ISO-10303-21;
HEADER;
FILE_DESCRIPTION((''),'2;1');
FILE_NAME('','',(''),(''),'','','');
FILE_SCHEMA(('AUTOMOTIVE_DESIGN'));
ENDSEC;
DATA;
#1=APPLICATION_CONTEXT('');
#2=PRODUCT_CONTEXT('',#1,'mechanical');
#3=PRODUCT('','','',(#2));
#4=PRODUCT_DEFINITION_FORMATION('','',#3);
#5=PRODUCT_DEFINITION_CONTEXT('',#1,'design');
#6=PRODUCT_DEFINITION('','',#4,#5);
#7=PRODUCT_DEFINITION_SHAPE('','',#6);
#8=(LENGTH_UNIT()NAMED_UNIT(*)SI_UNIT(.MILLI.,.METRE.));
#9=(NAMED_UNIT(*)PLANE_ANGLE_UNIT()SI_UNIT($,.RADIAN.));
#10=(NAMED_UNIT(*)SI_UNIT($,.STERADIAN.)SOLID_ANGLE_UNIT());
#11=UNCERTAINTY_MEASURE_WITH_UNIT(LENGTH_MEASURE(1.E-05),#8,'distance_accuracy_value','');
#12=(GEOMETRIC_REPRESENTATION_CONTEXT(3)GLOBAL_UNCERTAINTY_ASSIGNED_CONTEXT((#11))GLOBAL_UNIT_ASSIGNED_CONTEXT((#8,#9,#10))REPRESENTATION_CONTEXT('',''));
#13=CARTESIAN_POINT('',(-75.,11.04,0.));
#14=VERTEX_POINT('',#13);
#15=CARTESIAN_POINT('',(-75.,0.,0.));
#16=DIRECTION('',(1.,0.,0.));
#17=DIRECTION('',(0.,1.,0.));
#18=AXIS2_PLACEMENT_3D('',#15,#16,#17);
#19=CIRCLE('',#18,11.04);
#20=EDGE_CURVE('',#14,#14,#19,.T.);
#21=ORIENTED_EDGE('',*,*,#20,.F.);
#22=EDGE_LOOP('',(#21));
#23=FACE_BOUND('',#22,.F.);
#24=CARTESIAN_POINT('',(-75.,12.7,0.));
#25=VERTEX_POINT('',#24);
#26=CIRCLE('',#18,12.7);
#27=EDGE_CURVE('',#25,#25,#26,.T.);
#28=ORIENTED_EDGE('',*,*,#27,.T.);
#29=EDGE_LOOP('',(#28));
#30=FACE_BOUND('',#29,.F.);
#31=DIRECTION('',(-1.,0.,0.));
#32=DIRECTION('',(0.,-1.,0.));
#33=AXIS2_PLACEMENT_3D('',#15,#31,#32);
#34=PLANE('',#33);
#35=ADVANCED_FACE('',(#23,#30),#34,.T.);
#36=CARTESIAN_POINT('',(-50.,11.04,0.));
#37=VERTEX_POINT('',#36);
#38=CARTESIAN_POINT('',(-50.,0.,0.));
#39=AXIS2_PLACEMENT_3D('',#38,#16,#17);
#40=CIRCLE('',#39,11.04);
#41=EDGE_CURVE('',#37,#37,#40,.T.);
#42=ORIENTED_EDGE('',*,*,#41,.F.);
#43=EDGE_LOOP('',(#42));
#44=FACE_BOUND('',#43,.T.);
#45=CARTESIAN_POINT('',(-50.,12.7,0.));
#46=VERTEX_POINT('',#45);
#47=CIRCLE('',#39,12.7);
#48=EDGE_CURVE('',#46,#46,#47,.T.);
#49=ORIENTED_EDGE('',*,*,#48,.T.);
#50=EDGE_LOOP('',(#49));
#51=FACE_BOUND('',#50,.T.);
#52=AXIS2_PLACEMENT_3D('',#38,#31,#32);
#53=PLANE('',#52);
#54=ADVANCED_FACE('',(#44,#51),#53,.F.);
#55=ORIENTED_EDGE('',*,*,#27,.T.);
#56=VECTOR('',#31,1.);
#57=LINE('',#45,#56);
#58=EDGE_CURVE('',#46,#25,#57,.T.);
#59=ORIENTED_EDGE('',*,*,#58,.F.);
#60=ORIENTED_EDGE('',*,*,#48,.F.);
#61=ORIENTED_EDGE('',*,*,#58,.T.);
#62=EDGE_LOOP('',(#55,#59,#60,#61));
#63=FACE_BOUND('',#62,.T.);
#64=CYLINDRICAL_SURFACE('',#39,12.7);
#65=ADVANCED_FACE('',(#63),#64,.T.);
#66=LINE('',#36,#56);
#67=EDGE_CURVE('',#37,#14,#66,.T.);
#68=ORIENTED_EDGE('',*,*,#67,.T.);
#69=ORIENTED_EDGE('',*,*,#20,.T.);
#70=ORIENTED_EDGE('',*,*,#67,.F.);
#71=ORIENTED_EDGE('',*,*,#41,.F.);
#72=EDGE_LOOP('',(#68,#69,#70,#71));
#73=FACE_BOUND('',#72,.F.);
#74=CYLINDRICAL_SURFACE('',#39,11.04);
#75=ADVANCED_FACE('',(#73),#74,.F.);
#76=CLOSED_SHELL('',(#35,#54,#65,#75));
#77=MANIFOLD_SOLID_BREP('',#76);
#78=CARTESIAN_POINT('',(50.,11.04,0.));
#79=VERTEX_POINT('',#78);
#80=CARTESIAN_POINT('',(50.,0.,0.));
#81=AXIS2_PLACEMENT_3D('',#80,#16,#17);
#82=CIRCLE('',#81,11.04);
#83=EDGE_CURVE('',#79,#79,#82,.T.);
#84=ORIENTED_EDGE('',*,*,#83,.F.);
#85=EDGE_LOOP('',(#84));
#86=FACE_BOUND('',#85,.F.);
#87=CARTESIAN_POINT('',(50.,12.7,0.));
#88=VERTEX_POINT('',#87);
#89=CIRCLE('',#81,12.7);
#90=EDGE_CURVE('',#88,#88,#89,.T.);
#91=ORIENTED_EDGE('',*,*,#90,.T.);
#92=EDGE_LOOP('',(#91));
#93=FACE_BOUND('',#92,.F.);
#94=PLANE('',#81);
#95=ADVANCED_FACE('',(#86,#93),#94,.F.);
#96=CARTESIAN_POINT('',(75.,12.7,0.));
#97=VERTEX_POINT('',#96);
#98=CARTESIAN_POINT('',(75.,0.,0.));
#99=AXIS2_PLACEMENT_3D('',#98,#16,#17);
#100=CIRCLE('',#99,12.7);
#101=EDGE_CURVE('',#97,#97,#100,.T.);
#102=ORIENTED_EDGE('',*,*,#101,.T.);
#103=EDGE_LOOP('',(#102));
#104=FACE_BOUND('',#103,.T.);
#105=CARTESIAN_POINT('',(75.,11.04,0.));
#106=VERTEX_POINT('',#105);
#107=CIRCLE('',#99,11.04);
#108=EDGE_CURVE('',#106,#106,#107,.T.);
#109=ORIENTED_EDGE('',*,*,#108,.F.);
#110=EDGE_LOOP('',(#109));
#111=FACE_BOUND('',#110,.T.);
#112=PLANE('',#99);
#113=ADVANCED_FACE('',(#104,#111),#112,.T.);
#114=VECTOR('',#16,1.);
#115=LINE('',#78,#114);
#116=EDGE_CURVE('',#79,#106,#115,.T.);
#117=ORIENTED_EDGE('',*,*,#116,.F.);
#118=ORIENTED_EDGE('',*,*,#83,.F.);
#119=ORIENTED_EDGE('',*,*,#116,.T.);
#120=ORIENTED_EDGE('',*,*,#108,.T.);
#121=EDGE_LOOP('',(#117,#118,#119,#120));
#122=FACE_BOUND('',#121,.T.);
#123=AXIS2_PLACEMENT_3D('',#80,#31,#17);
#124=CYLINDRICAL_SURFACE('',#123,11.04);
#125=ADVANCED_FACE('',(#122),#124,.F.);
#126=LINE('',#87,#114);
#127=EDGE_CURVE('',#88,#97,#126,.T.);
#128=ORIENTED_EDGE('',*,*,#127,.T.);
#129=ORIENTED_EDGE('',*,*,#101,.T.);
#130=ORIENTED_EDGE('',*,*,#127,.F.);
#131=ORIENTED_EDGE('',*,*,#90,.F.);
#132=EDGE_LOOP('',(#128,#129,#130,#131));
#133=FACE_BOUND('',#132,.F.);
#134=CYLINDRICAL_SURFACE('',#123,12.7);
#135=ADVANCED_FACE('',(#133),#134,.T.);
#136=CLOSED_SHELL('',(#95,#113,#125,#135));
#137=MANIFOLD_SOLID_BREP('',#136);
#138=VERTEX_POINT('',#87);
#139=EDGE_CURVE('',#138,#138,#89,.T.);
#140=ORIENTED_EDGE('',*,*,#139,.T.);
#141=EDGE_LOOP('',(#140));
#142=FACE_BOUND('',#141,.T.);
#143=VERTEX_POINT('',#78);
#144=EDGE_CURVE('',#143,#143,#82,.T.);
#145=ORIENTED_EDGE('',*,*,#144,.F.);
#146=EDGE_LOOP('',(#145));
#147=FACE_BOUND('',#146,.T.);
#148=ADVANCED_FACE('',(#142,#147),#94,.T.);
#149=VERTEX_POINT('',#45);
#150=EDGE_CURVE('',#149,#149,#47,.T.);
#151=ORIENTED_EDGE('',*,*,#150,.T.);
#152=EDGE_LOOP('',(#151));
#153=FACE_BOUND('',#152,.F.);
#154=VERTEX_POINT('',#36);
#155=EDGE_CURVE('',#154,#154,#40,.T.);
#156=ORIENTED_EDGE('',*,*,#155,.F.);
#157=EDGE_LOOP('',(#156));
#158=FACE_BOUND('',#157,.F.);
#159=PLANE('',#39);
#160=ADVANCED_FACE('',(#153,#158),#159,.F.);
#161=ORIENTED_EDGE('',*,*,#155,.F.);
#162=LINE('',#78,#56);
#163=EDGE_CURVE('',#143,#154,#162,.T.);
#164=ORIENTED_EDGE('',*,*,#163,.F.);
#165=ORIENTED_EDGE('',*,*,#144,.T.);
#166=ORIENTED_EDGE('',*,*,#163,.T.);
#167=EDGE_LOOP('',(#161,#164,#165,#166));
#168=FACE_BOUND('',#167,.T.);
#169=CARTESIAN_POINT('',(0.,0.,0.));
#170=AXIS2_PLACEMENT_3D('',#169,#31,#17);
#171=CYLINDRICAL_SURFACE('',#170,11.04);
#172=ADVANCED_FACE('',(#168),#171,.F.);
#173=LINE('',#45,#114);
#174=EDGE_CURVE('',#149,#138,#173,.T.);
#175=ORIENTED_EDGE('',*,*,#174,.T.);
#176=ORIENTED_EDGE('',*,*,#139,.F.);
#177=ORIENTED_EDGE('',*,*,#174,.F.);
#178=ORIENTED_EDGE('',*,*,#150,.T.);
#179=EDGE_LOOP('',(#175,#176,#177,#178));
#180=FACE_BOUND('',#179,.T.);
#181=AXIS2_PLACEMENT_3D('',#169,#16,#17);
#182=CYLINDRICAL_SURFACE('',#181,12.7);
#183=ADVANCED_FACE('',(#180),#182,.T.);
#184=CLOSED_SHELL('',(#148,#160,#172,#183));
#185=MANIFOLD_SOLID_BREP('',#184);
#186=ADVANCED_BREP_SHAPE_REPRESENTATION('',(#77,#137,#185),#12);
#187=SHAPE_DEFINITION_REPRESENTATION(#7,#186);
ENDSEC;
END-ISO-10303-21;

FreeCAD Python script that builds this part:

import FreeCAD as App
import Part
import Sketcher
from FreeCAD import Vector

doc = App.newDocument("Part")
body = doc.addObject("PartDesign::Body", "Body")

# Sketch on YZ plane
sketch1 = doc.addObject("Sketcher::SketchObject", "Sketch")
body.addObject(sketch1)
sketch1.AttachmentSupport = (doc.YZ_Plane, [""])
sketch1.MapMode = "FlatFace"
sketch1.addGeometry([
    Part.Circle(Vector(0, 0, 0), Vector(0, 0, 1), 12.7),
    Part.Circle(Vector(0, 0, 0), Vector(0, 0, 1), 11.04),
], False)
sketch1.addConstraint([
    Sketcher.Constraint("Coincident", 0, 3, -1, 1),
    Sketcher.Constraint("Coincident", 1, 3, -1, 1),
    Sketcher.Constraint("Diameter", 0, 25.4),
    Sketcher.Constraint("Diameter", 1, 22.08),
])
pad1 = doc.addObject("PartDesign::Pad", "Pad")
body.addObject(pad1)
pad1.Profile = sketch1
pad1.Length = 100
pad1.Midplane = True
body2 = doc.addObject("PartDesign::Body", "Body001")

# Sketch on YZ plane
sketch2 = doc.addObject("Sketcher::SketchObject", "Sketch001")
body2.addObject(sketch2)
sketch2.AttachmentSupport = (doc.getObject("YZ_Plane001"), [""])
sketch2.MapMode = "FlatFace"
sketch2.AttachmentOffset = App.Placement(Vector(0, 0, 50), App.Rotation())
sketch2.addGeometry([
    Part.Circle(Vector(0, 0, 0), Vector(0, 0, 1), 12.7),
    Part.Circle(Vector(0, 0, 0), Vector(0, 0, 1), 11.04),
], False)
sketch2.addConstraint([
    Sketcher.Constraint("Coincident", 0, 3, -1, 1),
    Sketcher.Constraint("Coincident", 1, 3, -1, 1),
    Sketcher.Constraint("Diameter", 0, 25.4),
    Sketcher.Constraint("Diameter", 1, 22.08),
])
pad2 = doc.addObject("PartDesign::Pad", "Pad001")
body2.addObject(pad2)
pad2.Profile = sketch2
pad2.Length = 25
body3 = doc.addObject("PartDesign::Body", "Body002")
doc.recompute()

mirroring = doc.addObject("Part::Mirroring", "Mirroring")
mirroring.Source = body2
mirroring.Base = Vector(0, 0, 0)
mirroring.Normal = Vector(1, 0, 0)
body3.BaseFeature = mirroring
doc.recompute()
mirroring.Visibility = False

doc.recompute()
